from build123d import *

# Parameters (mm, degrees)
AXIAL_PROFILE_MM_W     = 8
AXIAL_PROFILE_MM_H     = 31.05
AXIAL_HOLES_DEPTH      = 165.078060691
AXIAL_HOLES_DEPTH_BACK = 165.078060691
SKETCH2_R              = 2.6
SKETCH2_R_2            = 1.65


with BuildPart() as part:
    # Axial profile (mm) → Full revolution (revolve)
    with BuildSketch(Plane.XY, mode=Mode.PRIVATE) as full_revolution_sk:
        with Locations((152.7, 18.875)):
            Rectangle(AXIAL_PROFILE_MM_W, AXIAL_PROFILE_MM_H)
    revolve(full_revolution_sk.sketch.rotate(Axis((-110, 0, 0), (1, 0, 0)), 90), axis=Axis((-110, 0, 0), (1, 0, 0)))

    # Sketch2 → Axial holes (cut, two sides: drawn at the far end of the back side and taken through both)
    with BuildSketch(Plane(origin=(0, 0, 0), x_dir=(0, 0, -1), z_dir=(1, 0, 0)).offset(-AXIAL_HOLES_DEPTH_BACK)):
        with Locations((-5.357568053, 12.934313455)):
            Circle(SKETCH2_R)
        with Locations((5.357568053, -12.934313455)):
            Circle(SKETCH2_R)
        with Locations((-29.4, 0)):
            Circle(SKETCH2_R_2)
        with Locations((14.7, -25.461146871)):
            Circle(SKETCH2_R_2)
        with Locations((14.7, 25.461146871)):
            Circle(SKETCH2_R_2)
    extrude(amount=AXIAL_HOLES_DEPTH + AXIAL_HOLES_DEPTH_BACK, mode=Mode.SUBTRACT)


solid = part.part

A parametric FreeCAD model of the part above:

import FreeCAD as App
import Part
import Sketcher
from FreeCAD import Vector


def add_polygon(sketch, points):
    """Adds a closed chain of lines whose ends are joined by coincident constraints."""
    first, n = sketch.GeometryCount, len(points)
    for a, b in zip(points, points[1:] + points[:1]):
        sketch.addGeometry(Part.LineSegment(App.Vector(*a, 0), App.Vector(*b, 0)), False)
    for i in range(n):
        sketch.addConstraint(Sketcher.Constraint("Coincident", first + i, 2, first + (i + 1) % n, 1))

doc = App.newDocument("Part")
body = doc.addObject("PartDesign::Body", "Body")

# Sketch on XY plane
sketch1 = body.newObject("Sketcher::SketchObject", "Sketch")
sketch1.AttachmentSupport = (doc.getObject("XY_Plane"), [""])
sketch1.MapMode = "FlatFace"
add_polygon(sketch1, [(148.7, 34.4), (148.7, 3.35), (156.7, 3.35), (156.7, 34.4)])  # lines 0-3
sketch1.addConstraint(Sketcher.Constraint("Vertical", 0))
sketch1.addConstraint(Sketcher.Constraint("Horizontal", 1))
sketch1.addConstraint(Sketcher.Constraint("Vertical", 2))
sketch1.addConstraint(Sketcher.Constraint("Horizontal", 3))
sketch1.addConstraint(Sketcher.Constraint("DistanceX", 1, 1, 1, 2, 8.0))
sketch1.addConstraint(Sketcher.Constraint("DistanceY", 0, 2, 0, 1, 31.05))
sketch1.addConstraint(Sketcher.Constraint("DistanceX", -1, 1, 0, 2, 148.7))
sketch1.addConstraint(Sketcher.Constraint("DistanceY", -1, 1, 2, 2, 34.4))
revolution = body.newObject("PartDesign::Revolution", "Revolution")
revolution.Profile = sketch1
revolution.ReferenceAxis = (sketch1, ["H_Axis"])
revolution.Angle = 360

# Sketch on YZ plane
sketch2 = body.newObject("Sketcher::SketchObject", "Sketch001")
sketch2.AttachmentSupport = (doc.getObject("YZ_Plane"), [""])
sketch2.MapMode = "FlatFace"
sketch2.addGeometry(Part.Circle(Vector(12.934313, 5.357568, 0), Vector(0, 0, 1), 2.6), False)
sketch2.addGeometry(Part.Circle(Vector(-12.934313, -5.357568, 0), Vector(0, 0, 1), 2.6), False)
sketch2.addGeometry(Part.Circle(Vector(0, 29.4, 0), Vector(0, 0, 1), 1.65), False)
sketch2.addGeometry(Part.Circle(Vector(-25.461147, -14.7, 0), Vector(0, 0, 1), 1.65), False)
sketch2.addGeometry(Part.Circle(Vector(25.461147, -14.7, 0), Vector(0, 0, 1), 1.65), False)
sketch2.addConstraint(Sketcher.Constraint("Equal", 0, 1))
sketch2.addConstraint(Sketcher.Constraint("Equal", 2, 3))
sketch2.addConstraint(Sketcher.Constraint("Equal", 3, 4))
sketch2.addConstraint(Sketcher.Constraint("Symmetric", 0, 3, 1, 3, -1, 1))
sketch2.addConstraint(Sketcher.Constraint("Symmetric", 3, 3, 4, 3, -2))
sketch2.addConstraint(Sketcher.Constraint("PointOnObject", 2, 3, -2))
sketch2.addConstraint(Sketcher.Constraint("Diameter", 0, 5.2))
sketch2.addConstraint(Sketcher.Constraint("Diameter", 2, 3.3))
sketch2.addConstraint(Sketcher.Constraint("DistanceY", -1, 1, 2, 3, 29.4))
sketch2.addConstraint(Sketcher.Constraint("DistanceY", 3, 3, -1, 1, 14.7))
sketch2.addConstraint(Sketcher.Constraint("DistanceY", -1, 1, 0, 3, 5.357568))
sketch2.addConstraint(Sketcher.Constraint("DistanceX", 3, 3, 0, 3, 38.39546))
sketch2.addConstraint(Sketcher.Constraint("DistanceX", -1, 1, 0, 3, 12.934313))
pocket1 = body.newObject("PartDesign::Pocket", "Pocket")
pocket1.Profile = sketch2
pocket1.Type = "ThroughAll"
pocket1.Midplane = True

doc.recompute()
